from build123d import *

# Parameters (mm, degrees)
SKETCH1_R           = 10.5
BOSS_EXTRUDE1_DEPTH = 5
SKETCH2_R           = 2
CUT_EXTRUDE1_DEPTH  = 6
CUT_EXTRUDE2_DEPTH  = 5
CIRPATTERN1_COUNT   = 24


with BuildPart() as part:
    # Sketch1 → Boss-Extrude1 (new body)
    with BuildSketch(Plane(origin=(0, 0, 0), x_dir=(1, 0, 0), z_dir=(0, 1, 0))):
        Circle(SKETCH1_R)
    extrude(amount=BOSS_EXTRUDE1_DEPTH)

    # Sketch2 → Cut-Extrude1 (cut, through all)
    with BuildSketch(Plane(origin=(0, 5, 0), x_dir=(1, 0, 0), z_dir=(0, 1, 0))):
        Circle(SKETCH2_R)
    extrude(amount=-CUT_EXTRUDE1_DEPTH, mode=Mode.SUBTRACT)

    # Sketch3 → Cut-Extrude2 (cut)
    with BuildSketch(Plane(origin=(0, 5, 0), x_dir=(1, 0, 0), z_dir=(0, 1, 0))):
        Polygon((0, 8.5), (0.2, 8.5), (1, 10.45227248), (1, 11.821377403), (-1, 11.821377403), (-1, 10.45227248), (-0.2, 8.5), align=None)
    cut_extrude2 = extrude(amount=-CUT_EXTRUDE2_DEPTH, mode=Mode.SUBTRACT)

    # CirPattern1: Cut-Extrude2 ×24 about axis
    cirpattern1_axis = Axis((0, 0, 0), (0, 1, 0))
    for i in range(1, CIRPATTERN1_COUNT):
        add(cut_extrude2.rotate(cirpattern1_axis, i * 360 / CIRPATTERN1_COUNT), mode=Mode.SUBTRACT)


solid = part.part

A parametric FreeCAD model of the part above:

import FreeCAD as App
import Part
import Sketcher
from FreeCAD import Vector

doc = App.newDocument("Part")
body = doc.addObject("PartDesign::Body", "Body")

# Sketch on XZ plane
sketch1 = doc.addObject("Sketcher::SketchObject", "Sketch")
body.addObject(sketch1)
sketch1.AttachmentSupport = (doc.XZ_Plane, [""])
sketch1.MapMode = "FlatFace"
sketch1.addGeometry(Part.Circle(Vector(0, 0, 0), Vector(0, 0, 1), 10.5), False)
sketch1.addConstraint([
    Sketcher.Constraint("Coincident", 0, 3, -1, 1),
    Sketcher.Constraint("Diameter", 0, 21.0),
])
pad1 = doc.addObject("PartDesign::Pad", "Pad")
body.addObject(pad1)
pad1.Profile = sketch1
pad1.Length = 5
pad1.Reversed = True

# Sketch on XZ plane
sketch2 = doc.addObject("Sketcher::SketchObject", "Sketch001")
body.addObject(sketch2)
sketch2.AttachmentSupport = (doc.XZ_Plane, [""])
sketch2.MapMode = "FlatFace"
sketch2.AttachmentOffset = App.Placement(Vector(0, 0, -5), App.Rotation())
sketch2.addGeometry(Part.Circle(Vector(0, 0, 0), Vector(0, 0, 1), 2), False)
sketch2.addConstraint([
    Sketcher.Constraint("Coincident", 0, 3, -1, 1),
    Sketcher.Constraint("Diameter", 0, 4.0),
])
pocket1 = doc.addObject("PartDesign::Pocket", "Pocket")
body.addObject(pocket1)
pocket1.Profile = sketch2
pocket1.Type = "ThroughAll"
pocket1.Reversed = True

# Sketch on XZ plane
sketch3 = doc.addObject("Sketcher::SketchObject", "Sketch002")
body.addObject(sketch3)
sketch3.AttachmentSupport = (doc.XZ_Plane, [""])
sketch3.MapMode = "FlatFace"
sketch3.AttachmentOffset = App.Placement(Vector(0, 0, -5), App.Rotation())
sketch3.addGeometry([
    Part.LineSegment(Vector(0.2, -8.5, 0), Vector(1, -10.452272, 0)),  # 0
    Part.LineSegment(Vector(1, -10.452272, 0), Vector(1, -11.821377, 0)),  # 1
    Part.LineSegment(Vector(1, -11.821377, 0), Vector(-1, -11.821377, 0)),  # 2
    Part.LineSegment(Vector(-1, -11.821377, 0), Vector(-1, -10.452272, 0)),  # 3
    Part.LineSegment(Vector(-1, -10.452272, 0), Vector(-0.2, -8.5, 0)),  # 4
    Part.LineSegment(Vector(-0.2, -8.5, 0), Vector(0.2, -8.5, 0)),  # 5
], False)
sketch3.addConstraint([
    Sketcher.Constraint("Coincident", 0, 2, 1, 1),
    Sketcher.Constraint("Coincident", 1, 2, 2, 1),
    Sketcher.Constraint("Coincident", 2, 2, 3, 1),
    Sketcher.Constraint("Coincident", 3, 2, 4, 1),
    Sketcher.Constraint("Coincident", 4, 2, 5, 1),
    Sketcher.Constraint("Coincident", 5, 2, 0, 1),
    Sketcher.Constraint("Vertical", 1),
    Sketcher.Constraint("Horizontal", 2),
    Sketcher.Constraint("Vertical", 3),
    Sketcher.Constraint("Horizontal", 5),
    Sketcher.Constraint("Symmetric", 0, 2, 3, 2, -2),
    Sketcher.Constraint("Equal", 0, 4),
    Sketcher.Constraint("DistanceX", 2, 2, 2, 1, 2.0),
    Sketcher.Constraint("DistanceX", 5, 1, 5, 2, 0.4),
    Sketcher.Constraint("DistanceY", 4, 2, -1, 1, 8.5),
    Sketcher.Constraint("DistanceY", 1, 2, 1, 1, 1.369105),
    Sketcher.Constraint("Distance", 0, 2.109826),
])
pocket2 = doc.addObject("PartDesign::Pocket", "Pocket001")
body.addObject(pocket2)
pocket2.Profile = sketch3
pocket2.Length = 5
pocket2.Reversed = True
doc.recompute()

polarpattern = doc.addObject("PartDesign::PolarPattern", "PolarPattern")
body.addObject(polarpattern)
polarpattern.Originals = [pocket2]
polarpattern.Axis = (doc.Y_Axis, [""])
polarpattern.Angle = 360
polarpattern.Occurrences = 24
body.Tip = polarpattern

doc.recompute()
